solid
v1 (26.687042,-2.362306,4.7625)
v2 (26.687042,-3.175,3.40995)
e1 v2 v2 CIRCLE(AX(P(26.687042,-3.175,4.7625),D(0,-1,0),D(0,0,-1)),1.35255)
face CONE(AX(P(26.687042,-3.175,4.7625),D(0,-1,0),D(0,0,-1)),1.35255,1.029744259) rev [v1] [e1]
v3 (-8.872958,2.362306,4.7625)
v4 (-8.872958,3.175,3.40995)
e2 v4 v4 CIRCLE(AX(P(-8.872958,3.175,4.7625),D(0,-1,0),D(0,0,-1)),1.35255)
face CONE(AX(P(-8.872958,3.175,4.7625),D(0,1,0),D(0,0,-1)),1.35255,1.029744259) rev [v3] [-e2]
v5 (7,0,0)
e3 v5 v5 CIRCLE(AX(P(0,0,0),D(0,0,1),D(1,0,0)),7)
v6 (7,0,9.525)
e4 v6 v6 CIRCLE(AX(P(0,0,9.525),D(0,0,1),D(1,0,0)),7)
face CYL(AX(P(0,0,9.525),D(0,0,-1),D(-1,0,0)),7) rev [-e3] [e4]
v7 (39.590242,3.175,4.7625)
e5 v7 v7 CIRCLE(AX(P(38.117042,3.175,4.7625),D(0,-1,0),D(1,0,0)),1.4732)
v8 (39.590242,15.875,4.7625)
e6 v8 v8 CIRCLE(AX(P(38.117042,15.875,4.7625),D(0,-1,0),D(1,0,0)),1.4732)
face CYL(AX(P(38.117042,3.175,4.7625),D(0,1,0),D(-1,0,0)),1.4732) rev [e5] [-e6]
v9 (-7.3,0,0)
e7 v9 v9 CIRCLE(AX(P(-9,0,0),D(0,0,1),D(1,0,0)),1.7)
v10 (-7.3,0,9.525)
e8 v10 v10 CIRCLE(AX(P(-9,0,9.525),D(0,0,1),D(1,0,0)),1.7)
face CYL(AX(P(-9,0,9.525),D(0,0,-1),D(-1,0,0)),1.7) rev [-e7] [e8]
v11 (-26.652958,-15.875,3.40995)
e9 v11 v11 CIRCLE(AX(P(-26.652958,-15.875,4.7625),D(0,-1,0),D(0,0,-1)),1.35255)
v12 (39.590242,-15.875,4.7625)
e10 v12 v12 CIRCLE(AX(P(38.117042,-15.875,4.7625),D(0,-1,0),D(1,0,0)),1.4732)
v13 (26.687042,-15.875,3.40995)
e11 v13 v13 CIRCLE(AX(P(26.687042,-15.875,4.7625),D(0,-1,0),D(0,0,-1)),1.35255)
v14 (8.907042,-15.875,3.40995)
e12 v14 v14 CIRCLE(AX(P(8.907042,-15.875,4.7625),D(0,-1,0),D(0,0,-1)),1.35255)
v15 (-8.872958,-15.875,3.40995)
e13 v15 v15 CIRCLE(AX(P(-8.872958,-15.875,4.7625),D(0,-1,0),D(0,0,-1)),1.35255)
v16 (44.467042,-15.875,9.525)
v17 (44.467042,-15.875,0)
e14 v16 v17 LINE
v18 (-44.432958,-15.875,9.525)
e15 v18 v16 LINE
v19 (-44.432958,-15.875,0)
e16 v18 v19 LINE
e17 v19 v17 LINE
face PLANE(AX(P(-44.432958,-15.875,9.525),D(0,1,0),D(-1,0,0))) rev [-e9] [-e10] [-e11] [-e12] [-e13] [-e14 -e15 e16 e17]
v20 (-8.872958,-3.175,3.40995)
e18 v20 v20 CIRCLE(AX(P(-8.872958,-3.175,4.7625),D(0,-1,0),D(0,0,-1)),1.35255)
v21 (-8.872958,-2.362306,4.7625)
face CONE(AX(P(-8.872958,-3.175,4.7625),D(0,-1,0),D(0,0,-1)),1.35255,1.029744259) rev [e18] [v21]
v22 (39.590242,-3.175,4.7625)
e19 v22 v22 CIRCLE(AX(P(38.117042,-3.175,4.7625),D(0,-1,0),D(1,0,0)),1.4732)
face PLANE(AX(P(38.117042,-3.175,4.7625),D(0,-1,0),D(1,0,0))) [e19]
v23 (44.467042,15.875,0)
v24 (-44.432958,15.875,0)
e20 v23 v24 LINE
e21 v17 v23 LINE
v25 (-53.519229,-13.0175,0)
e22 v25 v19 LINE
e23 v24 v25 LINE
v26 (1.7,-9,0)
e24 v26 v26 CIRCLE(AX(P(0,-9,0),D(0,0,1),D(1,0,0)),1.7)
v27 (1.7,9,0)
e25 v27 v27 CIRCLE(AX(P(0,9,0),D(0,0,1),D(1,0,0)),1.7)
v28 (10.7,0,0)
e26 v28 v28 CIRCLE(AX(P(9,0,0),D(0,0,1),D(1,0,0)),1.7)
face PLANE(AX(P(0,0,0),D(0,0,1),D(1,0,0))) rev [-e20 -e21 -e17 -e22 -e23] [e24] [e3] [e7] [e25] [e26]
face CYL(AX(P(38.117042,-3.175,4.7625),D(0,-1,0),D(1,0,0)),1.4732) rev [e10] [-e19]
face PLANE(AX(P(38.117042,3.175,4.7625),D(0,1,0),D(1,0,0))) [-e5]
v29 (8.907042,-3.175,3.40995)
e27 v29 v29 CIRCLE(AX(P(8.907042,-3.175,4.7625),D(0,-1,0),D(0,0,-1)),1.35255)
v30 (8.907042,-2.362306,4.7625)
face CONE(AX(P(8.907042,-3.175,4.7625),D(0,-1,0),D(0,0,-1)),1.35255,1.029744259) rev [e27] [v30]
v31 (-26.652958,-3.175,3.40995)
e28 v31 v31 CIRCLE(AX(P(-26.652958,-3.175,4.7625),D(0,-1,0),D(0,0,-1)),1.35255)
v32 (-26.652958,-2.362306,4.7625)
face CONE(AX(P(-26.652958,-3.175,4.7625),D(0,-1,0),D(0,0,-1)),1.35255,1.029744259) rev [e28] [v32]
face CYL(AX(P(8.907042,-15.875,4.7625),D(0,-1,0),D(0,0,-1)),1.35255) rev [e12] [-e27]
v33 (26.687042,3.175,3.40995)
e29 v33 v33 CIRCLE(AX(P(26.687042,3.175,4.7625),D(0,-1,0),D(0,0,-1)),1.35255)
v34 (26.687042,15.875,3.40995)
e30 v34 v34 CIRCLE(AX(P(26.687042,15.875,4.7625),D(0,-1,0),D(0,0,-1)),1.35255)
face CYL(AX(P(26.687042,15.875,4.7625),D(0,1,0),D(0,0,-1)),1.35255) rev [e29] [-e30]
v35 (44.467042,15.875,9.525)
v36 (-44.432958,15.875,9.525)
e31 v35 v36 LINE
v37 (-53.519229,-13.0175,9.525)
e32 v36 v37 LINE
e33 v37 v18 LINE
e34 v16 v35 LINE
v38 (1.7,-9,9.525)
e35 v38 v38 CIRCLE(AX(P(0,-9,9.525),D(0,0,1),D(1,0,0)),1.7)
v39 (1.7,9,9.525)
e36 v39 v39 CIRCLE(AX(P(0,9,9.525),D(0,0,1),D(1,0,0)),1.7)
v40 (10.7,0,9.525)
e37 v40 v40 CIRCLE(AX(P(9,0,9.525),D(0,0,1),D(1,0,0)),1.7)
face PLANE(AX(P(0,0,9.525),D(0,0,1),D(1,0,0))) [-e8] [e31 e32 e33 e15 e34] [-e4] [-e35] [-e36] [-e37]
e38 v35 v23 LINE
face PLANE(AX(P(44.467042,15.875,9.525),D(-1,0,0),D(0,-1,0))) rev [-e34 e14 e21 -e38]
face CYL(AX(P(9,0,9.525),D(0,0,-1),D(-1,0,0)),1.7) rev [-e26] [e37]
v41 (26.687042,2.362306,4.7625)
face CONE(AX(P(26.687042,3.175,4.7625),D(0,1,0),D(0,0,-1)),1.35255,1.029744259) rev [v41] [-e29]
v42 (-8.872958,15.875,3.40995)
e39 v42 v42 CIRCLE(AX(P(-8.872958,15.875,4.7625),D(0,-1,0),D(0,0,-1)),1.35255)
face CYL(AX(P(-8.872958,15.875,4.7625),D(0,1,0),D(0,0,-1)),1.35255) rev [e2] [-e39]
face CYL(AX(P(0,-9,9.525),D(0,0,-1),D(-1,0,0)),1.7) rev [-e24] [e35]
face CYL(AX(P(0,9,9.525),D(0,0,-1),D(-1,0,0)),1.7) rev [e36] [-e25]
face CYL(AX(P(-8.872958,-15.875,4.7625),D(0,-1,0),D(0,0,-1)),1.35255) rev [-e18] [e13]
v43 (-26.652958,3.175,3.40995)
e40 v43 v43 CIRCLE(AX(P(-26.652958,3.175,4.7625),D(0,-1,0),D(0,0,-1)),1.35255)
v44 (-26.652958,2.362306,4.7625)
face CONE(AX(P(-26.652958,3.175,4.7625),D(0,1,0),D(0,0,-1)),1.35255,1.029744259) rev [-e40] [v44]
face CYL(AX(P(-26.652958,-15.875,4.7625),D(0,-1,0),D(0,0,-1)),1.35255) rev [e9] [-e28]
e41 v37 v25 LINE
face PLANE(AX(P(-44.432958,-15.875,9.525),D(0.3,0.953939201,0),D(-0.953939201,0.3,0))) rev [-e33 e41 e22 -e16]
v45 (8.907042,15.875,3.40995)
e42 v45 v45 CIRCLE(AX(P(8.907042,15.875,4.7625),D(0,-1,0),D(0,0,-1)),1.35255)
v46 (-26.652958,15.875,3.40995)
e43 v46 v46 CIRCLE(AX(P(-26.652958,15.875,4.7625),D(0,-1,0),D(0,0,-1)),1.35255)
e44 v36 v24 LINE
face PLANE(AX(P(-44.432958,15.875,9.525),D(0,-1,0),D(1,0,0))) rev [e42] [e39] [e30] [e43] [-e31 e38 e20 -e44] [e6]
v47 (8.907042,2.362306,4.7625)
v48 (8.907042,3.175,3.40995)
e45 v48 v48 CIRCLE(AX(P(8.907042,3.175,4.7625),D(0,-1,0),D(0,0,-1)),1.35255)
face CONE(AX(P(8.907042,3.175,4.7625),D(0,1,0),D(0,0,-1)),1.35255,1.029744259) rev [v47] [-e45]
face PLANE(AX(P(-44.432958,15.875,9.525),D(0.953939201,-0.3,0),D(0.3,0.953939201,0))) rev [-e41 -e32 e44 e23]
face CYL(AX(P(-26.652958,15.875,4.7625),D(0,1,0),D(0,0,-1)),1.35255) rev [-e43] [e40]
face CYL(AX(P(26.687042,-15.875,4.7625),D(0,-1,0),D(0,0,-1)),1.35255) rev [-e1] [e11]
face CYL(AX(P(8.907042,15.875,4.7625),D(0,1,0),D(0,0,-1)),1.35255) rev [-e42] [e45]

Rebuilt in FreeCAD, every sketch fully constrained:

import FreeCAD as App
import Part
import Sketcher
Q = App.Units.Quantity


def add_polygon(sketch, points):
    """Adds a closed chain of lines whose ends are joined by coincident constraints."""
    first, n = sketch.GeometryCount, len(points)
    for a, b in zip(points, points[1:] + points[:1]):
        sketch.addGeometry(Part.LineSegment(App.Vector(*a, 0), App.Vector(*b, 0)), False)
    for i in range(n):
        sketch.addConstraint(Sketcher.Constraint("Coincident", first + i, 2, first + (i + 1) % n, 1))

doc = App.newDocument("Part")
body = doc.addObject("PartDesign::Body", "Body")

# Sketch on XY plane
sketch1 = body.newObject("Sketcher::SketchObject", "Sketch")
sketch1.AttachmentSupport = (doc.getObject("XY_Plane"), [""])
sketch1.MapMode = "FlatFace"
add_polygon(sketch1, [(44.5, 15.9), (-44.4, 15.9), (-53.5, -13), (-44.4, -15.9), (44.5, -15.9)])  # lines 0-4
sketch1.addGeometry(Part.Circle(App.Vector(0, -9, 0), App.Vector(0, 0, 1), 1.7), False)  # 5
sketch1.addGeometry(Part.Circle(App.Vector(9, 0, 0), App.Vector(0, 0, 1), 1.7), False)  # 6
sketch1.addGeometry(Part.Circle(App.Vector(0, 0, 0), App.Vector(0, 0, 1), 7), False)  # 7
sketch1.addGeometry(Part.Circle(App.Vector(-9, 0, 0), App.Vector(0, 0, 1), 1.7), False)  # 8
sketch1.addGeometry(Part.Circle(App.Vector(0, 9, 0), App.Vector(0, 0, 1), 1.7), False)  # 9
sketch1.addConstraint([
    Sketcher.Constraint("Horizontal", 0),
    Sketcher.Constraint("Horizontal", 3),
    Sketcher.Constraint("Vertical", 4),
    Sketcher.Constraint("Coincident", 7, 3, -1, 1),
    Sketcher.Constraint("Equal", 5, 6),
    Sketcher.Constraint("Equal", 6, 8),
    Sketcher.Constraint("Equal", 8, 9),
    Sketcher.Constraint("Symmetric", 6, 3, 8, 3, -1, 1),
    Sketcher.Constraint("Symmetric", 5, 3, 9, 3, -1, 1),
    Sketcher.Constraint("Symmetric", 0, 2, 2, 2, -1),
    Sketcher.Constraint("PointOnObject", 5, 3, -2),
    Sketcher.Constraint("PointOnObject", 6, 3, -1),
    Sketcher.Constraint("Perpendicular", 1, 2),
    Sketcher.Constraint("DistanceX", 0, 2, 0, 1, Q("3.5 in")),
    Sketcher.Constraint("DistanceY", 4, 1, 4, 2, Q("1.25 in")),
    Sketcher.Constraint("Diameter", 5, 3.4),
    Sketcher.Constraint("Diameter", 7, 14.0),
    Sketcher.Constraint("Distance", 2, Q("0.375 in")),
    Sketcher.Constraint("DistanceY", 5, 3, -1, 1, 9.0),
    Sketcher.Constraint("DistanceX", -1, 1, 6, 3, 9.0),
    Sketcher.Constraint("DistanceX", 0, 2, -1, 1, 44.432958),
])
pad1 = body.newObject("PartDesign::Pad", "Pad")
pad1.Profile = sketch1
pad1.Length = Q("0.375 in")

# Sketch on YZ plane
sketch2 = body.newObject("Sketcher::SketchObject", "Sketch001")
sketch2.AttachmentSupport = (doc.getObject("YZ_Plane"), [""])
sketch2.MapMode = "FlatFace"
sketch2.AttachmentOffset = App.Placement(App.Vector(0, 0, 26.687042), App.Rotation())
add_polygon(sketch2, [(-2.4, 4.8), (-15.9, 4.8), (-15.9, 3.4), (-3.2, 3.4)])  # lines 0-3
sketch2.addGeometry(Part.LineSegment(App.Vector(-15.9, 4.8, 0), App.Vector(-2.4, 4.8, 0)), True)  # axis
sketch2.addConstraint([
    Sketcher.Constraint("Horizontal", 0),
    Sketcher.Constraint("Vertical", 1),
    Sketcher.Constraint("Horizontal", 2),
    Sketcher.Constraint("Horizontal", 4),
    Sketcher.Constraint("Coincident", 4, 1, 0, 2),
    Sketcher.Constraint("Equal", 0, 4),
    Sketcher.Constraint("DistanceX", 2, 1, 2, 2, Q("0.5 in")),
    Sketcher.Constraint("Angle", 3, Q("59 deg")),
    Sketcher.Constraint("DistanceX", 0, 2, -1, 1, Q("0.625 in")),
    Sketcher.Constraint("DistanceY", -1, 1, 0, 2, Q("0.1875 in")),
    Sketcher.Constraint("DistanceY", 1, 2, 1, 1, 1.35255),
])
groove = body.newObject("PartDesign::Groove", "Groove")
groove.Profile = sketch2
groove.ReferenceAxis = (sketch2, ["Axis0"])
groove.Angle = 360
doc.recompute()

linearpattern = body.newObject("PartDesign::LinearPattern", "LinearPattern")
linearpattern.Originals = [groove]
linearpattern.Direction = (doc.getObject("X_Axis"), [""])
linearpattern.Mode = "offset"
linearpattern.Offset = Q("0.7 in")
linearpattern.Occurrences = 4
linearpattern.Reversed = True
body.Tip = linearpattern
doc.recompute()

mirrored = body.newObject("PartDesign::Mirrored", "Mirrored")
mirrored.Originals = [groove]
mirrored.MirrorPlane = (doc.getObject("XZ_Plane"), [""])
body.Tip = mirrored

# Sketch on YZ plane
sketch3 = body.newObject("Sketcher::SketchObject", "Sketch002")
sketch3.AttachmentSupport = (doc.getObject("YZ_Plane"), [""])
sketch3.MapMode = "FlatFace"
sketch3.AttachmentOffset = App.Placement(App.Vector(0, 0, 8.907042), App.Rotation())
add_polygon(sketch3, [(15.9, 4.8), (2.4, 4.8), (3.2, 3.4), (15.9, 3.4)])  # lines 0-3
sketch3.addGeometry(Part.LineSegment(App.Vector(2.4, 4.8, 0), App.Vector(15.9, 4.8, 0)), True)  # axis
sketch3.addConstraint([
    Sketcher.Constraint("Horizontal", 0),
    Sketcher.Constraint("Horizontal", 2),
    Sketcher.Constraint("Vertical", 3),
    Sketcher.Constraint("Horizontal", 4),
    Sketcher.Constraint("Coincident", 4, 1, 0, 2),
    Sketcher.Constraint("Vertical", 2, 2, 4, 2),
    Sketcher.Constraint("DistanceX", 2, 1, 2, 2, Q("0.5 in")),
    Sketcher.Constraint("Angle", 1, Q("-59 deg")),
    Sketcher.Constraint("DistanceY", -1, 1, 0, 2, Q("0.1875 in")),
    Sketcher.Constraint("DistanceX", -1, 1, 1, 2, Q("0.125 in")),
    Sketcher.Constraint("DistanceY", 3, 1, 3, 2, 1.35255),
])
groove2 = body.newObject("PartDesign::Groove", "Groove001")
groove2.Profile = sketch3
groove2.ReferenceAxis = (sketch3, ["Axis0"])
groove2.Angle = 360

# Sketch on YZ plane
sketch4 = body.newObject("Sketcher::SketchObject", "Sketch003")
sketch4.AttachmentSupport = (doc.getObject("YZ_Plane"), [""])
sketch4.MapMode = "FlatFace"
sketch4.AttachmentOffset = App.Placement(App.Vector(0, 0, -8.872958), App.Rotation())
add_polygon(sketch4, [(15.9, 4.8), (2.4, 4.8), (3.2, 3.4), (15.9, 3.4)])  # lines 0-3
sketch4.addGeometry(Part.LineSegment(App.Vector(2.4, 4.8, 0), App.Vector(15.9, 4.8, 0)), True)  # axis
sketch4.addConstraint([
    Sketcher.Constraint("Horizontal", 0),
    Sketcher.Constraint("Horizontal", 2),
    Sketcher.Constraint("Vertical", 3),
    Sketcher.Constraint("Horizontal", 4),
    Sketcher.Constraint("Coincident", 4, 1, 0, 2),
    Sketcher.Constraint("Vertical", 2, 2, 4, 2),
    Sketcher.Constraint("DistanceX", 2, 1, 2, 2, Q("0.5 in")),
    Sketcher.Constraint("Angle", 1, Q("-59 deg")),
    Sketcher.Constraint("DistanceY", -1, 1, 0, 2, Q("0.1875 in")),
    Sketcher.Constraint("DistanceX", -1, 1, 1, 2, Q("0.125 in")),
    Sketcher.Constraint("DistanceY", 3, 1, 3, 2, 1.35255),
])
groove3 = body.newObject("PartDesign::Groove", "Groove002")
groove3.Profile = sketch4
groove3.ReferenceAxis = (sketch4, ["Axis0"])
groove3.Angle = 360

# Sketch on YZ plane
sketch5 = body.newObject("Sketcher::SketchObject", "Sketch004")
sketch5.AttachmentSupport = (doc.getObject("YZ_Plane"), [""])
sketch5.MapMode = "FlatFace"
sketch5.AttachmentOffset = App.Placement(App.Vector(0, 0, -26.652958), App.Rotation())
add_polygon(sketch5, [(15.9, 4.8), (2.4, 4.8), (3.2, 3.4), (15.9, 3.4)])  # lines 0-3
sketch5.addGeometry(Part.LineSegment(App.Vector(2.4, 4.8, 0), App.Vector(15.9, 4.8, 0)), True)  # axis
sketch5.addConstraint([
    Sketcher.Constraint("Horizontal", 0),
    Sketcher.Constraint("Horizontal", 2),
    Sketcher.Constraint("Vertical", 3),
    Sketcher.Constraint("Horizontal", 4),
    Sketcher.Constraint("Coincident", 4, 1, 0, 2),
    Sketcher.Constraint("Vertical", 2, 2, 4, 2),
    Sketcher.Constraint("DistanceX", 2, 1, 2, 2, Q("0.5 in")),
    Sketcher.Constraint("Angle", 1, Q("-59 deg")),
    Sketcher.Constraint("DistanceY", -1, 1, 0, 2, Q("0.1875 in")),
    Sketcher.Constraint("DistanceX", -1, 1, 1, 2, Q("0.125 in")),
    Sketcher.Constraint("DistanceY", 3, 1, 3, 2, 1.35255),
])
groove4 = body.newObject("PartDesign::Groove", "Groove003")
groove4.Profile = sketch5
groove4.ReferenceAxis = (sketch5, ["Axis0"])
groove4.Angle = 360

# Sketch on XZ plane
sketch6 = body.newObject("Sketcher::SketchObject", "Sketch005")
sketch6.AttachmentSupport = (doc.getObject("XZ_Plane"), [""])
sketch6.MapMode = "FlatFace"
sketch6.AttachmentOffset = App.Placement(App.Vector(0, 0, 0.625 * 25.4), App.Rotation())
sketch6.addGeometry(Part.Circle(App.Vector(38.1, 4.8, 0), App.Vector(0, 0, 1), 1.5), False)
sketch6.addConstraint([
    Sketcher.Constraint("Diameter", 0, Q("0.116 in")),
    Sketcher.Constraint("DistanceY", -1, 1, 0, 3, Q("0.1875 in")),
    Sketcher.Constraint("DistanceX", -1, 1, 0, 3, 38.117042),
])
pocket1 = body.newObject("PartDesign::Pocket", "Pocket")
pocket1.Profile = sketch6
pocket1.Length = Q("0.5 in")
doc.recompute()

mirrored2 = body.newObject("PartDesign::Mirrored", "Mirrored001")
mirrored2.Originals = [pocket1]
mirrored2.MirrorPlane = (doc.getObject("XZ_Plane"), [""])
body.Tip = mirrored2

doc.recompute()
